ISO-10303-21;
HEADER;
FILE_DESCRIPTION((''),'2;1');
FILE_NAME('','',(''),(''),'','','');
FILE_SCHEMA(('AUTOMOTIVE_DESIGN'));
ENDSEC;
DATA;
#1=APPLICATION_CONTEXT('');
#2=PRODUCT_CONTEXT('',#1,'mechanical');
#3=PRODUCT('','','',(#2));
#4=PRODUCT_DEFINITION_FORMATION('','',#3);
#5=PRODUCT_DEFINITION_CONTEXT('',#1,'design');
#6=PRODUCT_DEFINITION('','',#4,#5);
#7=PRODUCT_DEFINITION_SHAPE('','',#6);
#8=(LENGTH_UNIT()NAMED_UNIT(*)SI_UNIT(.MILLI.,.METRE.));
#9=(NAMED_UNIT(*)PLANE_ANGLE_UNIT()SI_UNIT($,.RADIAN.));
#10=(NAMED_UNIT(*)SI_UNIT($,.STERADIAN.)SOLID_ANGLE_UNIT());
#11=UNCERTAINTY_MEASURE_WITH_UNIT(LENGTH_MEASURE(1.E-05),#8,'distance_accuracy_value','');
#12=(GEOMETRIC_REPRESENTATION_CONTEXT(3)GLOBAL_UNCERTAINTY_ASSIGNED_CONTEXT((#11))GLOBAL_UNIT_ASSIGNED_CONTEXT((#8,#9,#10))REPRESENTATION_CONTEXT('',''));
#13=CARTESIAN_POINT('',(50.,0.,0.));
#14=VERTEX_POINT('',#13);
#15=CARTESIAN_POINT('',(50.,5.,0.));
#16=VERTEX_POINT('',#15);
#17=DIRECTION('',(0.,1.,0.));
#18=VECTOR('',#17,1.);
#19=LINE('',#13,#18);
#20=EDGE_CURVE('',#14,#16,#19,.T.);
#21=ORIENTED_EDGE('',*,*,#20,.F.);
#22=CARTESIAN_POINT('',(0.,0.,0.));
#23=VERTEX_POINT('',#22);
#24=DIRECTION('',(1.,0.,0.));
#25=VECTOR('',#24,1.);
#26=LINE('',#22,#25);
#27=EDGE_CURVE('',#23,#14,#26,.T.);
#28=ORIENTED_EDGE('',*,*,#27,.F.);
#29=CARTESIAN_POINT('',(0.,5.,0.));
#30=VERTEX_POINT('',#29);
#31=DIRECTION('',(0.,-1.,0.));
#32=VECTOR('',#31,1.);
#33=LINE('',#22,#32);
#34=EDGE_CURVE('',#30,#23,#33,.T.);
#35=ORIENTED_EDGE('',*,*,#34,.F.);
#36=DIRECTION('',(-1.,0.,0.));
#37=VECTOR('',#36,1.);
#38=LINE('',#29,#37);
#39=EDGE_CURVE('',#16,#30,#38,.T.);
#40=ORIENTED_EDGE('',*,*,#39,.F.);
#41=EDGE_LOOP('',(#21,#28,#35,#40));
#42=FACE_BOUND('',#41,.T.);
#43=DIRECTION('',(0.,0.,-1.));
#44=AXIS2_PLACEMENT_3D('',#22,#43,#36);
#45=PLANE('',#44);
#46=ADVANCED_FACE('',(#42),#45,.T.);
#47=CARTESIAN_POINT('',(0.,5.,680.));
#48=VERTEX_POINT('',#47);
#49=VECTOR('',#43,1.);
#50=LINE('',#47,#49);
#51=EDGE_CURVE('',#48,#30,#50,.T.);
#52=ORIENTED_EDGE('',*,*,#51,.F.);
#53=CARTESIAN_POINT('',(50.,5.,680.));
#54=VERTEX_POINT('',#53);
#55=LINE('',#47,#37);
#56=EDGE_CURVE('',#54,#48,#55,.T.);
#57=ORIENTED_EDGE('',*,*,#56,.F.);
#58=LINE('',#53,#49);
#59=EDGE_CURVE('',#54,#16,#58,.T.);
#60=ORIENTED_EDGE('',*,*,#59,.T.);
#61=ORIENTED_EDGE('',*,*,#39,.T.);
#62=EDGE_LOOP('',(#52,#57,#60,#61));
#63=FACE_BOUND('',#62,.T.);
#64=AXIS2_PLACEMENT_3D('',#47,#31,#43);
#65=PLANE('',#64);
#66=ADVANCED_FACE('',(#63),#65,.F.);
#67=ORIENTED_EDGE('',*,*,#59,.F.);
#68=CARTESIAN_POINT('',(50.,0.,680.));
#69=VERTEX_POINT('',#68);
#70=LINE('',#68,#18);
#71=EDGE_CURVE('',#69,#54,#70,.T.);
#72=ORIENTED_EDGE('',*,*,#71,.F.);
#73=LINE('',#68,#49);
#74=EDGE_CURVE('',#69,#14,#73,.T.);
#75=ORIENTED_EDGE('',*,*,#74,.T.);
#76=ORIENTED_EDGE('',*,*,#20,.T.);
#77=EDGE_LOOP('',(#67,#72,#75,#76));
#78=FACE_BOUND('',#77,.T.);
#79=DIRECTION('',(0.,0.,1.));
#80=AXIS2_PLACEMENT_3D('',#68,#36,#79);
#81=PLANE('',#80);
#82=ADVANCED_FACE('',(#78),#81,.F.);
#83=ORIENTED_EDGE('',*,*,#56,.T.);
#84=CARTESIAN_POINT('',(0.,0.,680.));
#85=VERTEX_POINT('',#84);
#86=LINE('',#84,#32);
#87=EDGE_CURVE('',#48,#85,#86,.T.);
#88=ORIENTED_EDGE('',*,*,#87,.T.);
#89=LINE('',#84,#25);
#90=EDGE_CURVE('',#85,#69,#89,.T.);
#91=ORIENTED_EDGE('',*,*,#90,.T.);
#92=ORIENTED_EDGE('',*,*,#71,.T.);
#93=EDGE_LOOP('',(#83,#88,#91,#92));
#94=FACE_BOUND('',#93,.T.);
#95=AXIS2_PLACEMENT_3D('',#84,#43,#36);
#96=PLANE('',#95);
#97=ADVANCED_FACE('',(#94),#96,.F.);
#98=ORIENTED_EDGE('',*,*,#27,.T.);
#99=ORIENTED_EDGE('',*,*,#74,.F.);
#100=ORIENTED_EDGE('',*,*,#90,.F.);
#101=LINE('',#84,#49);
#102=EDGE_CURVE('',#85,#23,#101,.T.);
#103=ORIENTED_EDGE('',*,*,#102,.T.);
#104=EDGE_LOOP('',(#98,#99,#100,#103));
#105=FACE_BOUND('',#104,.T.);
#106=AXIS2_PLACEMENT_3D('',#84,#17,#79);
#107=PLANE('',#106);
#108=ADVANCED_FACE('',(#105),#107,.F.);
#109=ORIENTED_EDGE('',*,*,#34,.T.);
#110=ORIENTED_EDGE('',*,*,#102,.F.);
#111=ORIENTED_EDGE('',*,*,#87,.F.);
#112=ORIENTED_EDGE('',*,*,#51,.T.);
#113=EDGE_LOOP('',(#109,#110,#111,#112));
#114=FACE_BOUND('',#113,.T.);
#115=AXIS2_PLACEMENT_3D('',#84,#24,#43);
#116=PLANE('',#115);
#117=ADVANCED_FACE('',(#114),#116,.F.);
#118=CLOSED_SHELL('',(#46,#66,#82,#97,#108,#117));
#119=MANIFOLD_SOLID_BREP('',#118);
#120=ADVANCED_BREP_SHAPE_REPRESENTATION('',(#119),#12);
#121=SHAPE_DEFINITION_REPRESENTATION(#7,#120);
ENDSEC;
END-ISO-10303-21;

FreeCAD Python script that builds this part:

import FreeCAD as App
import Part
import Sketcher

V = App.Vector
Q = App.Units.Quantity

doc = App.newDocument("Part")
body = doc.addObject("PartDesign::Body", "Body")

# Sketch on XY plane
sketch1 = body.newObject("Sketcher::SketchObject", "Sketch")
sketch1.AttachmentSupport = (doc.getObject("XY_Plane"), [""])
sketch1.MapMode = "FlatFace"
sketch1.addGeometry([
    Part.LineSegment(V(0, 5, 0), V(0, 0, 0)),
    Part.LineSegment(V(0, 0, 0), V(50, 0, 0)),
    Part.LineSegment(V(50, 0, 0), V(50, 5, 0)),
    Part.LineSegment(V(50, 5, 0), V(0, 5, 0)),
], False)
sketch1.addConstraint([
    Sketcher.Constraint("Coincident", 0, 2, 1, 1),
    Sketcher.Constraint("Coincident", 1, 2, 2, 1),
    Sketcher.Constraint("Coincident", 2, 2, 3, 1),
    Sketcher.Constraint("Coincident", 3, 2, 0, 1),
    Sketcher.Constraint("Vertical", 0),
    Sketcher.Constraint("Horizontal", 1),
    Sketcher.Constraint("Vertical", 2),
    Sketcher.Constraint("Horizontal", 3),
    Sketcher.Constraint("Coincident", 0, 2, -1, 1),
    Sketcher.Constraint("DistanceX", 1, 1, 1, 2, Q("50 mm")),
    Sketcher.Constraint("DistanceY", 0, 2, 0, 1, Q("5 mm")),
])
pad1 = body.newObject("PartDesign::Pad", "Pad")
pad1.Profile = sketch1
pad1.Length = 680

doc.recompute()
